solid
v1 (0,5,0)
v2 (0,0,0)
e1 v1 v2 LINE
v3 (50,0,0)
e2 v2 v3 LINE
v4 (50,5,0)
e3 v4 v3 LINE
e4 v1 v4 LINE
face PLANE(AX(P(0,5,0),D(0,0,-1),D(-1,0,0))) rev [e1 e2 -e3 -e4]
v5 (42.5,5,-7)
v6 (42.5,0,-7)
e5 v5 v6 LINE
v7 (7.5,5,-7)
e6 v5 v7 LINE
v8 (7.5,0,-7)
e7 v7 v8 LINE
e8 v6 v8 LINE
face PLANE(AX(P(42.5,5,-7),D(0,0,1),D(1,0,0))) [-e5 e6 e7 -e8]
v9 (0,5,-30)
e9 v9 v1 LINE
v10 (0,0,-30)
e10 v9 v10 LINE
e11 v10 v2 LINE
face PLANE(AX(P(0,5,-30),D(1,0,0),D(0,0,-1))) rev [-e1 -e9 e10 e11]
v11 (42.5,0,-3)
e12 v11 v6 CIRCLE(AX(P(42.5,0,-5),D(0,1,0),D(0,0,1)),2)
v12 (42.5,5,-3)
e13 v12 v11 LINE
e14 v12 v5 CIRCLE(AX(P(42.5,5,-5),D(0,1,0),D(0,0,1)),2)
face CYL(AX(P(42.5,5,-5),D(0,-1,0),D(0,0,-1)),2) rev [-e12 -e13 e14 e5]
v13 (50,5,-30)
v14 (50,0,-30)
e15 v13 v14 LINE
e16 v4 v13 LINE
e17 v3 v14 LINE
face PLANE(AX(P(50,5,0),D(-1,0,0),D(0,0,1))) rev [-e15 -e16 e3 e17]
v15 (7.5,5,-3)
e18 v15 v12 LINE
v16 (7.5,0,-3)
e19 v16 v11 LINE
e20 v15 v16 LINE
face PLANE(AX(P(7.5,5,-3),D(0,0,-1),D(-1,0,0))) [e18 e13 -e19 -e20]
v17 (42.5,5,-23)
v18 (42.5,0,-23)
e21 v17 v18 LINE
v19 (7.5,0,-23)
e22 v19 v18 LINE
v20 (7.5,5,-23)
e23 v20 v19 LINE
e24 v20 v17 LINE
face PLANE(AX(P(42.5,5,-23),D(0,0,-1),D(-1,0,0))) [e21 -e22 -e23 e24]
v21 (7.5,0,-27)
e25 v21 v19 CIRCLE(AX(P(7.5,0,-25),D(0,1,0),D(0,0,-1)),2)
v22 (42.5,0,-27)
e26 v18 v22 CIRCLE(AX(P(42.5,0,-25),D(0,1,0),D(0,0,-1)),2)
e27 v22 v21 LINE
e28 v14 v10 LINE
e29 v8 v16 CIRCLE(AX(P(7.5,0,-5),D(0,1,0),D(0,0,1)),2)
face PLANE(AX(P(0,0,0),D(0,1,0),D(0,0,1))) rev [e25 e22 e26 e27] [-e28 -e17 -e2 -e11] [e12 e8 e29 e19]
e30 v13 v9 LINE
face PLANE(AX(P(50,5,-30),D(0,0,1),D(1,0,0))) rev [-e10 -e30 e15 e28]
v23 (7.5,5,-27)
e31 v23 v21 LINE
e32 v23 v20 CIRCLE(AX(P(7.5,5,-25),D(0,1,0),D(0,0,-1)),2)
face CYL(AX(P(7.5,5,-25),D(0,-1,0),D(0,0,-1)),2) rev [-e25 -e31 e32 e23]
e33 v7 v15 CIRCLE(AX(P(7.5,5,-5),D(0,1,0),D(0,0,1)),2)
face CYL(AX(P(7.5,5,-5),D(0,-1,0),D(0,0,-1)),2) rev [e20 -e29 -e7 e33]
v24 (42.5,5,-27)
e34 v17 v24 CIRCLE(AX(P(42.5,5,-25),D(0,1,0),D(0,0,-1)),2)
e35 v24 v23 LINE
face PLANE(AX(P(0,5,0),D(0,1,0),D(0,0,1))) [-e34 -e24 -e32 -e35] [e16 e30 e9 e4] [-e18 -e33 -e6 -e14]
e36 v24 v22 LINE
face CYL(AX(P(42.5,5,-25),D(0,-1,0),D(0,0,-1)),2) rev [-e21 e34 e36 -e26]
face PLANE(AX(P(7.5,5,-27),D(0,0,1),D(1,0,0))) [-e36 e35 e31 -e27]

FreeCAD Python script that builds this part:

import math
import FreeCAD as App
import Part
import Sketcher
Q = App.Units.Quantity


def add_polygon(sketch, points):
    """Adds a closed chain of lines whose ends are joined by coincident constraints."""
    first, n = sketch.GeometryCount, len(points)
    for a, b in zip(points, points[1:] + points[:1]):
        sketch.addGeometry(Part.LineSegment(App.Vector(*a, 0), App.Vector(*b, 0)), False)
    for i in range(n):
        sketch.addConstraint(Sketcher.Constraint("Coincident", first + i, 2, first + (i + 1) % n, 1))

doc = App.newDocument("Part")
params = doc.addObject("Spreadsheet::Sheet", "Params")
for row, (alias, value) in enumerate([
    ("sketch1_radius", "2 mm"),
    ("sketch1_width", "50 mm"),
    ("sketch1_width2", "35 mm"),
    ("sketch1_height", "30 mm"),
    ("pad1_length", "5 mm"),
], start=1):
    params.set(f"A{row}", alias)
    params.set(f"B{row}", "=" + value)
    params.setAlias(f"B{row}", alias)

body = doc.addObject("PartDesign::Body", "Body")

sketch1 = doc.addObject("Sketcher::SketchObject", "Sketch")
body.addObject(sketch1)
sketch1.AttachmentSupport = (doc.XZ_Plane, [""])
sketch1.MapMode = "FlatFace"
add_polygon(sketch1, [(0, -30), (0, 0), (50, 0), (50, -30)])
sketch1.addGeometry(Part.LineSegment(App.Vector(7.5, -7, 0), App.Vector(42.5, -7, 0)), False)
sketch1.addGeometry(Part.ArcOfCircle(Part.Circle(App.Vector(42.5, -5, 0), App.Vector(0, 0, 1), 2), math.radians(-90), math.radians(90)), False)
sketch1.addGeometry(Part.LineSegment(App.Vector(42.5, -3, 0), App.Vector(7.5, -3, 0)), False)
sketch1.addGeometry(Part.ArcOfCircle(Part.Circle(App.Vector(7.5, -5, 0), App.Vector(0, 0, 1), 2), math.radians(90), math.radians(270)), False)
sketch1.addGeometry(Part.ArcOfCircle(Part.Circle(App.Vector(7.5, -25, 0), App.Vector(0, 0, 1), 2), math.radians(90), math.radians(270)), False)
sketch1.addGeometry(Part.LineSegment(App.Vector(7.5, -27, 0), App.Vector(42.5, -27, 0)), False)
sketch1.addGeometry(Part.ArcOfCircle(Part.Circle(App.Vector(42.5, -25, 0), App.Vector(0, 0, 1), 2), math.radians(-90), math.radians(90)), False)
sketch1.addGeometry(Part.LineSegment(App.Vector(42.5, -23, 0), App.Vector(7.5, -23, 0)), False)
sketch1.addConstraint([
    Sketcher.Constraint("Tangent", 4, 2, 5, 1),
    Sketcher.Constraint("Tangent", 5, 2, 6, 1),
    Sketcher.Constraint("Tangent", 6, 2, 7, 1),
    Sketcher.Constraint("Tangent", 7, 2, 4, 1),
    Sketcher.Constraint("Tangent", 8, 2, 9, 1),
    Sketcher.Constraint("Tangent", 9, 2, 10, 1),
    Sketcher.Constraint("Tangent", 10, 2, 11, 1),
    Sketcher.Constraint("Tangent", 11, 2, 8, 1),
    Sketcher.Constraint("Vertical", 0),
    Sketcher.Constraint("Horizontal", 1),
    Sketcher.Constraint("Vertical", 2),
    Sketcher.Constraint("Horizontal", 3),
    Sketcher.Constraint("Horizontal", 4),
    Sketcher.Constraint("Horizontal", 6),
    Sketcher.Constraint("Horizontal", 9),
    Sketcher.Constraint("Horizontal", 11),
    Sketcher.Constraint("Coincident", 0, 2, -1, 1),
    Sketcher.Constraint("Equal", 7, 8),
    Sketcher.Constraint("Vertical", 7, 3, 8, 3),
    Sketcher.Constraint("Vertical", 5, 3, 10, 3),
    Sketcher.Constraint("Radius", 5, Q("2 mm")),
    Sketcher.Constraint("DistanceX", 1, 1, 1, 2, Q("50 mm")),
    Sketcher.Constraint("DistanceX", 4, 1, 4, 2, Q("35 mm")),
    Sketcher.Constraint("DistanceY", 0, 1, 0, 2, Q("30 mm")),
    Sketcher.Constraint("DistanceY", 5, 3, -1, 1, Q("5 mm")),
    Sketcher.Constraint("DistanceY", 8, 3, -1, 1, Q("25 mm")),
    Sketcher.Constraint("DistanceX", -1, 1, 5, 3, Q("42.5 mm")),
])
sketch1.setExpression("Constraints[24]", "Params.sketch1_radius")
sketch1.setExpression("Constraints[25]", "Params.sketch1_width")
sketch1.setExpression("Constraints[26]", "Params.sketch1_width2")
sketch1.setExpression("Constraints[27]", "Params.sketch1_height")
pad1 = doc.addObject("PartDesign::Pad", "Pad")
body.addObject(pad1)
pad1.Profile = sketch1
pad1.setExpression("Length", "Params.pad1_length")
pad1.Reversed = True

doc.recompute()
